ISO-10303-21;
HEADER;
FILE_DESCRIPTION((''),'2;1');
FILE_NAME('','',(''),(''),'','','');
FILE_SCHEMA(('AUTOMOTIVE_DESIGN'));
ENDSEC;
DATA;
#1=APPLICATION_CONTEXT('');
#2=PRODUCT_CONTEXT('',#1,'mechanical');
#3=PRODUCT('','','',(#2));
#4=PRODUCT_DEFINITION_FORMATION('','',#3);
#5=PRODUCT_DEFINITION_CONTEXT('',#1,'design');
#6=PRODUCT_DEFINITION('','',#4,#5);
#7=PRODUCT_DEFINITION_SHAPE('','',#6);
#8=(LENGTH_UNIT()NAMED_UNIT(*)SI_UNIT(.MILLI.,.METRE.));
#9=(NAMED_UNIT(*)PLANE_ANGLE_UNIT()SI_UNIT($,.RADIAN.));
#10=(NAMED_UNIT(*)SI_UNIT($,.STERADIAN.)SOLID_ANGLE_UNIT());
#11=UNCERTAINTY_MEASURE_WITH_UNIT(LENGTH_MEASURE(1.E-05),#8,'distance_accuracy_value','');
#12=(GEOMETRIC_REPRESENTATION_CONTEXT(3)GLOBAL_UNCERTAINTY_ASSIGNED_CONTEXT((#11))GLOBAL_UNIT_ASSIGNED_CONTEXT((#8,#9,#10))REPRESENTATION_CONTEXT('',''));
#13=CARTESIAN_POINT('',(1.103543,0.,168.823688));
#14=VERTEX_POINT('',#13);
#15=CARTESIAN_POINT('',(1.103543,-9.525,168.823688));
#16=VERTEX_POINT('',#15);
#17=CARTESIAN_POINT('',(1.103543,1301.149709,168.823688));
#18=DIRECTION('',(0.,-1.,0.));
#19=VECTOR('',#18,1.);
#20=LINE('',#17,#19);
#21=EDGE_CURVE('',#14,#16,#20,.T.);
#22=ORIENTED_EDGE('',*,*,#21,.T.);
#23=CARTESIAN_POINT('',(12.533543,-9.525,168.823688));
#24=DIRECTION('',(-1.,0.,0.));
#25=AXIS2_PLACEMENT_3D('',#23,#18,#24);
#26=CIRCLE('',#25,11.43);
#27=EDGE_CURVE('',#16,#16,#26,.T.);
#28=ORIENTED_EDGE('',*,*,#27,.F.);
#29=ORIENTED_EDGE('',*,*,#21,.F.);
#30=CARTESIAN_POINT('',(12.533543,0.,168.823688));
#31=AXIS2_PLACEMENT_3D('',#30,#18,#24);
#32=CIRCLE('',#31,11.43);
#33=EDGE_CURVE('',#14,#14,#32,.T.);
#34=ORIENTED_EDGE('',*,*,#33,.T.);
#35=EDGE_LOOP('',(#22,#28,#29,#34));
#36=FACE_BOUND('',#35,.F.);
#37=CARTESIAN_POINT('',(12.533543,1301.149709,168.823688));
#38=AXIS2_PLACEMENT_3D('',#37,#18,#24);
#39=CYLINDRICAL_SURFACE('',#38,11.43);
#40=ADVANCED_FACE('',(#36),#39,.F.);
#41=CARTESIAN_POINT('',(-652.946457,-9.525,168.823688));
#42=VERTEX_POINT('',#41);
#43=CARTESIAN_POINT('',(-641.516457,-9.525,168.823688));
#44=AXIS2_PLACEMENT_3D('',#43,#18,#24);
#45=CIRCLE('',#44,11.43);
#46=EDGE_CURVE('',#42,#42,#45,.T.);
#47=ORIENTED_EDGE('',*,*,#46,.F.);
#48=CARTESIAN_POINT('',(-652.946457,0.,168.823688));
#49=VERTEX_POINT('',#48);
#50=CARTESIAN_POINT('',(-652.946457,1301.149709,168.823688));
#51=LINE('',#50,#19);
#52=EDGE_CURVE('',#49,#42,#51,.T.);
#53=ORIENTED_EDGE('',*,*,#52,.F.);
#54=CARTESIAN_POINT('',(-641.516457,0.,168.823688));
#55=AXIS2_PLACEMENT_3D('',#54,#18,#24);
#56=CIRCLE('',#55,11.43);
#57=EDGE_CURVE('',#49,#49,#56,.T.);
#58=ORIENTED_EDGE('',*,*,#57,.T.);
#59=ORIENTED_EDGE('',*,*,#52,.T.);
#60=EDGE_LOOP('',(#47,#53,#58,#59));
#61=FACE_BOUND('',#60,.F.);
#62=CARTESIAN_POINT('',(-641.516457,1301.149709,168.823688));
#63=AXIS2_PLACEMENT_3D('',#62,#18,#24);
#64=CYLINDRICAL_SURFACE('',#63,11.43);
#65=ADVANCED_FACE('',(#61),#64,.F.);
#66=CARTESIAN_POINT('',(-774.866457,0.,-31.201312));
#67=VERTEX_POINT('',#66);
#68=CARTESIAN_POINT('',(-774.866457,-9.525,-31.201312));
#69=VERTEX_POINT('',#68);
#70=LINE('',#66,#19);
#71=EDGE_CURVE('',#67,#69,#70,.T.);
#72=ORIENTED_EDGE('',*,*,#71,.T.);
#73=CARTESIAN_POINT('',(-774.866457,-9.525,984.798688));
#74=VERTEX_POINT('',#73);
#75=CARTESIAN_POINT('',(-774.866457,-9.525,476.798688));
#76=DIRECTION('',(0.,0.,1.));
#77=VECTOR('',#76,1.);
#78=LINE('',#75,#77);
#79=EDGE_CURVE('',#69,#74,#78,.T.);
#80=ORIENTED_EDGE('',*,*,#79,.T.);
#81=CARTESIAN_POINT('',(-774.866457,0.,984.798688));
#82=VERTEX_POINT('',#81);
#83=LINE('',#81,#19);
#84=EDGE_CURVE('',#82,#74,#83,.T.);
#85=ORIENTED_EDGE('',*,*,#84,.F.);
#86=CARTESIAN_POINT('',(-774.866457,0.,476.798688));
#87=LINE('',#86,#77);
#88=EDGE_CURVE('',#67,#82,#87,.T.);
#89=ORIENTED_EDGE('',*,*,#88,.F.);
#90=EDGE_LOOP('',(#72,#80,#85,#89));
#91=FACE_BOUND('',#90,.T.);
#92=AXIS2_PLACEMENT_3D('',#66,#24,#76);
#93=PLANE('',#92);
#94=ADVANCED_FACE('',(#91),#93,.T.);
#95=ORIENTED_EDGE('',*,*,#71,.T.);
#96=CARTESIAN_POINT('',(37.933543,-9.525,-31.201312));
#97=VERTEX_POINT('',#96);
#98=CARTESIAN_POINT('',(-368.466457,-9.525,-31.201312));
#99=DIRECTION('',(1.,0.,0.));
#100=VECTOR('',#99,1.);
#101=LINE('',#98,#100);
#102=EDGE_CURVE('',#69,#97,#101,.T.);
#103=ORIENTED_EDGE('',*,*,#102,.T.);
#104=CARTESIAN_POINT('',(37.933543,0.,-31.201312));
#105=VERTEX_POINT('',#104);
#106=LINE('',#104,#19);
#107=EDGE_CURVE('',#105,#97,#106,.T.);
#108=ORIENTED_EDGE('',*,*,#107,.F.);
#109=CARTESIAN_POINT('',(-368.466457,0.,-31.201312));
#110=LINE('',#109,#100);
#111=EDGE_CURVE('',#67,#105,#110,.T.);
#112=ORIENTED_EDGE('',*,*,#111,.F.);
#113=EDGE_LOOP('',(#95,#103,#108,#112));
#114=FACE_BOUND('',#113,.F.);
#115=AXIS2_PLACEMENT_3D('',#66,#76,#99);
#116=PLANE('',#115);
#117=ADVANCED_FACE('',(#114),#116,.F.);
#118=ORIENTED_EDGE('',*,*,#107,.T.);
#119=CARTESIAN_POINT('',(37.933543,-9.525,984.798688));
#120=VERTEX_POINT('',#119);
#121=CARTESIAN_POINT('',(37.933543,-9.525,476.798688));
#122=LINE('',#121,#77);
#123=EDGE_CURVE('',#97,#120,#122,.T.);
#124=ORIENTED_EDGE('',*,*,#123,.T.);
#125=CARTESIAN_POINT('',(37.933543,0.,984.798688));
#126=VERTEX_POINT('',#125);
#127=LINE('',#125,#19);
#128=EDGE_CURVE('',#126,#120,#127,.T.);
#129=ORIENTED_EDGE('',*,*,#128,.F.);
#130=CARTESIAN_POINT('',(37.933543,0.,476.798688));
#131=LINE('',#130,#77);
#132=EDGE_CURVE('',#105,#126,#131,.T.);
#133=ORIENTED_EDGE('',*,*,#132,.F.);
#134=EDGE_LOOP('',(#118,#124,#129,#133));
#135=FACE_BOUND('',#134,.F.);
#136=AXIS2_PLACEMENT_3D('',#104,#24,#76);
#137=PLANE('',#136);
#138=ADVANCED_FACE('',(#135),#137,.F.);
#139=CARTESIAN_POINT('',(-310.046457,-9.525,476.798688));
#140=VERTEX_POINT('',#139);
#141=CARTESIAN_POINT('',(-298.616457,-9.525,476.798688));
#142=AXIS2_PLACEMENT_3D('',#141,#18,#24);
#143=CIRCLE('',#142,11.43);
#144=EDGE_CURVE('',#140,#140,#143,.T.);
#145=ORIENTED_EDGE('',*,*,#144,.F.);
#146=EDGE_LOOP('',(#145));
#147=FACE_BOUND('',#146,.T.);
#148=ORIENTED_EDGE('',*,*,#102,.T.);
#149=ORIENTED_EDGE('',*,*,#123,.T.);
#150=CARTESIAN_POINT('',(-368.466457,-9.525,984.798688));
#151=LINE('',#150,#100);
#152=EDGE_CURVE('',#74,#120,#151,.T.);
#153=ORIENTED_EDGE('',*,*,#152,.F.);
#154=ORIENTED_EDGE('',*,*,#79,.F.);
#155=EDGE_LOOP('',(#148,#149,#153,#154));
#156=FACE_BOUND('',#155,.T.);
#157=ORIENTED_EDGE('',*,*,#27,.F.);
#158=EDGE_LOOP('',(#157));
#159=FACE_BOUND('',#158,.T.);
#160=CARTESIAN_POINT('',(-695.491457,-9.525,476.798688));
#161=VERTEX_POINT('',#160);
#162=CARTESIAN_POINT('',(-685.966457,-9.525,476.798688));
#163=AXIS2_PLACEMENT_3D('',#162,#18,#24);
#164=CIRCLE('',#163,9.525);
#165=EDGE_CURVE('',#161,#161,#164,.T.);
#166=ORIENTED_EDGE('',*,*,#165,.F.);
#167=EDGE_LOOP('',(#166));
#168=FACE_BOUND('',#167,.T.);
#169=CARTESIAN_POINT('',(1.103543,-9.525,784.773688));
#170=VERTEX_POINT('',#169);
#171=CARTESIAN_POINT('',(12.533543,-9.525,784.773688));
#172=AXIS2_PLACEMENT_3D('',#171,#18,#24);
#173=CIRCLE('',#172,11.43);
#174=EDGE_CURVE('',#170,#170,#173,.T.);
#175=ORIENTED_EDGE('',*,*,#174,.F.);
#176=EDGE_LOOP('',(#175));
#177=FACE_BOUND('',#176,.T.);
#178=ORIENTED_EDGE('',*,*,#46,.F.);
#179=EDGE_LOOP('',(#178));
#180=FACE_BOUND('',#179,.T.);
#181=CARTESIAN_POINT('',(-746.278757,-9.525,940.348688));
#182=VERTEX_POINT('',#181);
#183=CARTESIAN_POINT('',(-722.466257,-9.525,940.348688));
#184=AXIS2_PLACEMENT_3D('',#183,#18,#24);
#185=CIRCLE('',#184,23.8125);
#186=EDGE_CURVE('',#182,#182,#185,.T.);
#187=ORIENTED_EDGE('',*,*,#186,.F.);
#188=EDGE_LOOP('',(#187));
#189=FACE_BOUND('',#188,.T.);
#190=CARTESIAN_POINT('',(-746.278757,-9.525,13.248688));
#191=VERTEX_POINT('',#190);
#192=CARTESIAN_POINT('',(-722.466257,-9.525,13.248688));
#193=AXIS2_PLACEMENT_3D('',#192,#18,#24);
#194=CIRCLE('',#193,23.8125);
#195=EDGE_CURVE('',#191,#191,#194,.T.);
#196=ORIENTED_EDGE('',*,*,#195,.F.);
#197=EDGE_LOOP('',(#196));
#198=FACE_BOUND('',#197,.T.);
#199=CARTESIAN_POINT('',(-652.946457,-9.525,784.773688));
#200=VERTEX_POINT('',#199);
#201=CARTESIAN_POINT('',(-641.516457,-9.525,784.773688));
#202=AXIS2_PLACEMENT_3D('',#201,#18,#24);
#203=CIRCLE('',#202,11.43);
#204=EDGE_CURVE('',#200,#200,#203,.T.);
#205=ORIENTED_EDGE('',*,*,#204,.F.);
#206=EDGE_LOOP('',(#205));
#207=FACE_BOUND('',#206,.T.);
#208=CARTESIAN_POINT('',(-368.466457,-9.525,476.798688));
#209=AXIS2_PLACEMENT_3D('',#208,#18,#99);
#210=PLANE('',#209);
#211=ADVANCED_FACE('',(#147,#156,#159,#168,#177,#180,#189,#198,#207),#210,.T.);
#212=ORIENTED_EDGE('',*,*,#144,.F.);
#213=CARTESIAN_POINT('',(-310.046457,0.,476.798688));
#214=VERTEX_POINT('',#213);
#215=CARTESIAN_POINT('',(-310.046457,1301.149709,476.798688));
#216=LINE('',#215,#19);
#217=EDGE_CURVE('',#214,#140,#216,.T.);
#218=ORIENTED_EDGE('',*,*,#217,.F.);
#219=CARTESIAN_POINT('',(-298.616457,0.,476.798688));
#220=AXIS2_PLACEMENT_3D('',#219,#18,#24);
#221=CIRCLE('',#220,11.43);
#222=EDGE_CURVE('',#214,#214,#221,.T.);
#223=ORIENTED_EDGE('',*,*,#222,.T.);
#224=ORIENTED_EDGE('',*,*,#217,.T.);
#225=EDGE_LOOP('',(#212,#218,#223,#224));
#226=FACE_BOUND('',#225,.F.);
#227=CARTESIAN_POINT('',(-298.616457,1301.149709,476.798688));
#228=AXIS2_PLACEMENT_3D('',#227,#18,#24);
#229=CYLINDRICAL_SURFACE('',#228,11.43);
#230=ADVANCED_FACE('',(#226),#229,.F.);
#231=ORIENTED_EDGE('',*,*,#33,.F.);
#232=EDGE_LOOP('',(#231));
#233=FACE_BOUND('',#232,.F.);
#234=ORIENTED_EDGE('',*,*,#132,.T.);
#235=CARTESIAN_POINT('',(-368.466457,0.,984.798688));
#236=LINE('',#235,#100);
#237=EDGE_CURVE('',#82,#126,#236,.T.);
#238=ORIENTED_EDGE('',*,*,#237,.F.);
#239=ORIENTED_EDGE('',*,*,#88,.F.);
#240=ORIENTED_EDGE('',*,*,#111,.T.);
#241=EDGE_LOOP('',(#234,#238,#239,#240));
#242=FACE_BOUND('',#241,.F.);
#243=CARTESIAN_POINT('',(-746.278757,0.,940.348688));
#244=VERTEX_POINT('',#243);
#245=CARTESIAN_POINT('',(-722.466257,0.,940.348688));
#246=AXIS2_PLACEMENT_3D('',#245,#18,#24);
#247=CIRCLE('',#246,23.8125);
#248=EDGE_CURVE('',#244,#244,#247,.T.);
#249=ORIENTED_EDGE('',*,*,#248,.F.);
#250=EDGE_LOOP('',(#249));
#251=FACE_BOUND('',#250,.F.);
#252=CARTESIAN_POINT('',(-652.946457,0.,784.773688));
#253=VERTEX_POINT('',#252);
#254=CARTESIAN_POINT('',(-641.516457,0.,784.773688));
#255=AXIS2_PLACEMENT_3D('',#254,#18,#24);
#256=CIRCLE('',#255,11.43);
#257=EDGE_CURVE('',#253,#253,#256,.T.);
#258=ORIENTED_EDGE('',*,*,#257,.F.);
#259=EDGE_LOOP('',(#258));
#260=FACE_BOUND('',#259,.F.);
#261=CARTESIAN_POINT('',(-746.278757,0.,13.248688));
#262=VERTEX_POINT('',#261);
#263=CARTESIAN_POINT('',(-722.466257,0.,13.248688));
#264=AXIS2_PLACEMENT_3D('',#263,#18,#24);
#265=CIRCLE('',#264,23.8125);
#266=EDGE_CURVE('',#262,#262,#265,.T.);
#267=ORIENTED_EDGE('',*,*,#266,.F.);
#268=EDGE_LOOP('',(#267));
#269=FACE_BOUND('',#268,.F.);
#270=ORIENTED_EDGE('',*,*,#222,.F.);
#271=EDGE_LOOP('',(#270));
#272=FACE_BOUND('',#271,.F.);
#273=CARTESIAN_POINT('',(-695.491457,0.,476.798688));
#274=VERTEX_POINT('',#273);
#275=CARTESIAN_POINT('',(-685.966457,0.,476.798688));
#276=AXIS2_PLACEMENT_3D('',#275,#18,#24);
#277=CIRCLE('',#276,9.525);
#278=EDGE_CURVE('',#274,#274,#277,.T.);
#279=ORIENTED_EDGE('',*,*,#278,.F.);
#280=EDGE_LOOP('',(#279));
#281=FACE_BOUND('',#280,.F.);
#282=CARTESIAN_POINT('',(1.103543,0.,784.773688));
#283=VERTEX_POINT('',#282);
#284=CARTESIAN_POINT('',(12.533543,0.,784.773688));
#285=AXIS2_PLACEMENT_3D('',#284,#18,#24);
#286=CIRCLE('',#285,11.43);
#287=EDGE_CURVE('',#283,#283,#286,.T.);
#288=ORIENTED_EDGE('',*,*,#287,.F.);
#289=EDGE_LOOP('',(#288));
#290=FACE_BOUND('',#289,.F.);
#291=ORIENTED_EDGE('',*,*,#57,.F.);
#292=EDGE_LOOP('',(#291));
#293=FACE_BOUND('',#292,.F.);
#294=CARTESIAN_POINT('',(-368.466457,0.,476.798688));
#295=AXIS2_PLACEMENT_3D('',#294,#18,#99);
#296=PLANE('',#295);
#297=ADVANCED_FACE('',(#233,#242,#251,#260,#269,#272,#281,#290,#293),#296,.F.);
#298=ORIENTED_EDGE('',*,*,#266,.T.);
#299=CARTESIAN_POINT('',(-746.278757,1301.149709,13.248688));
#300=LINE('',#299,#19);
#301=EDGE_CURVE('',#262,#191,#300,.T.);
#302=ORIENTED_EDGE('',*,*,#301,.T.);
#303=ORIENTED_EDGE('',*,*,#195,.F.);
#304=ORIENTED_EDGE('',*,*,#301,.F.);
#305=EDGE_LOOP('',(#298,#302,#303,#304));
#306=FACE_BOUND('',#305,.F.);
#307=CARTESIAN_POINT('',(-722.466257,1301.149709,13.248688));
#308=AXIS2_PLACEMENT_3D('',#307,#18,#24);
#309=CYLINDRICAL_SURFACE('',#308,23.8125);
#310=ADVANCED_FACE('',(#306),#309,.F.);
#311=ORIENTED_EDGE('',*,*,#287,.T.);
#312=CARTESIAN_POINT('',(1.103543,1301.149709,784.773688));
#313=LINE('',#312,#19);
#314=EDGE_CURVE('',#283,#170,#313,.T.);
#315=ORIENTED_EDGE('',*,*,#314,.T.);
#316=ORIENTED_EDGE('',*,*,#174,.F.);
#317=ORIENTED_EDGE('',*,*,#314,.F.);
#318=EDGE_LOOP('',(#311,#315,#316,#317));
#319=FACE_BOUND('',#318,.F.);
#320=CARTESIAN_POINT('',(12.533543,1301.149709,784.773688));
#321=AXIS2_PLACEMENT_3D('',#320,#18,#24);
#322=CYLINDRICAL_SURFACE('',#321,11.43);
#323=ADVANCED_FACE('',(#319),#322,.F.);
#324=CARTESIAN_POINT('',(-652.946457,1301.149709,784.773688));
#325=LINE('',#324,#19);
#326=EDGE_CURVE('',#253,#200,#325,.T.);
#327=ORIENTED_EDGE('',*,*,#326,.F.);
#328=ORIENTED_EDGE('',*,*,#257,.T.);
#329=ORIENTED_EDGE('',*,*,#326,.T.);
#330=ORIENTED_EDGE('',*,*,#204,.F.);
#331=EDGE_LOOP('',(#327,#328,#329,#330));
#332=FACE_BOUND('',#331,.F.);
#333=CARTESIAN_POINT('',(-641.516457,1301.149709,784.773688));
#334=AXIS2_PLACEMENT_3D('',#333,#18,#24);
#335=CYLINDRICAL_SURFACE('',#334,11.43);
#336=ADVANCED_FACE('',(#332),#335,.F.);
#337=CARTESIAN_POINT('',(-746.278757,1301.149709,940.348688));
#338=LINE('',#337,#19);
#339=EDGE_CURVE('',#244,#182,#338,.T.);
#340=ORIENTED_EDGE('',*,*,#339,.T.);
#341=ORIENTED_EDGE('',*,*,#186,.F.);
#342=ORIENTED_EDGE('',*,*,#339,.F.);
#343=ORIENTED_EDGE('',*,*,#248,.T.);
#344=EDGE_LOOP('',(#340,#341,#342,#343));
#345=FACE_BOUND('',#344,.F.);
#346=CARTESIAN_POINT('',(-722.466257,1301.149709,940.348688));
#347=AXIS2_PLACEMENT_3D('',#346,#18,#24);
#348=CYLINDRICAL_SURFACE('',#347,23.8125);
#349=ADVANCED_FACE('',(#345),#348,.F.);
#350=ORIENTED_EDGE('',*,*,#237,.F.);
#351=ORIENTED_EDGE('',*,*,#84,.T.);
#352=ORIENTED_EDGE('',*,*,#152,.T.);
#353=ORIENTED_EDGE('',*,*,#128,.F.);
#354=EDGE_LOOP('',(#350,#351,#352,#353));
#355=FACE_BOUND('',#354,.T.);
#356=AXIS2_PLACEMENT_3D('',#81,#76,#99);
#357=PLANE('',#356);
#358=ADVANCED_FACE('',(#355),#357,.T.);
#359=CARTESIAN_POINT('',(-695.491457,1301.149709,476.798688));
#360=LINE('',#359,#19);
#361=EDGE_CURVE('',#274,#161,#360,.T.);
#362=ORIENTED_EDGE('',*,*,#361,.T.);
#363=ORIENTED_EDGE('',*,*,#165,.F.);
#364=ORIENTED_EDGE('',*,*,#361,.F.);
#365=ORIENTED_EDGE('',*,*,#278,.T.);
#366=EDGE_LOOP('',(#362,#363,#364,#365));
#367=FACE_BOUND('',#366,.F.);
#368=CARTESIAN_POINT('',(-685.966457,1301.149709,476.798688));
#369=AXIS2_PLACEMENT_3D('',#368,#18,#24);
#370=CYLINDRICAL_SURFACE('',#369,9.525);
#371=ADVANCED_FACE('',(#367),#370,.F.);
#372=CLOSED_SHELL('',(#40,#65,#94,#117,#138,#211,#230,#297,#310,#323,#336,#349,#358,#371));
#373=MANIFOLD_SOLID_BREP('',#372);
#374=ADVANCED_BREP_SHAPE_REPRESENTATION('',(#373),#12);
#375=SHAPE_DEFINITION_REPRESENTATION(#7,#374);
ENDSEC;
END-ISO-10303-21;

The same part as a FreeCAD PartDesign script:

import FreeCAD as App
import Part
import Sketcher

V = App.Vector
Q = App.Units.Quantity

doc = App.newDocument("Part")
body = doc.addObject("PartDesign::Body", "Body")

# Sketch on XZ plane
sketch1 = doc.addObject("Sketcher::SketchObject", "Sketch")
body.addObject(sketch1)
sketch1.AttachmentSupport = (doc.XZ_Plane, [""])
sketch1.MapMode = "FlatFace"
sketch1.addGeometry([
    Part.LineSegment(V(-775, 985, 0), V(-775, -31, 0)),
    Part.LineSegment(V(-775, -31, 0), V(38, -31, 0)),
    Part.LineSegment(V(38, -31, 0), V(38, 985, 0)),
    Part.LineSegment(V(38, 985, 0), V(-775, 985, 0)),
], False)
sketch1.addConstraint([
    Sketcher.Constraint("Coincident", 0, 2, 1, 1),
    Sketcher.Constraint("Coincident", 1, 2, 2, 1),
    Sketcher.Constraint("Coincident", 2, 2, 3, 1),
    Sketcher.Constraint("Coincident", 3, 2, 0, 1),
    Sketcher.Constraint("Vertical", 0),
    Sketcher.Constraint("Horizontal", 1),
    Sketcher.Constraint("Vertical", 2),
    Sketcher.Constraint("Horizontal", 3),
    Sketcher.Constraint("DistanceX", 1, 1, 1, 2, Q("32 in")),
    Sketcher.Constraint("DistanceY", 0, 2, 0, 1, Q("40 in")),
    Sketcher.Constraint("DistanceX", 0, 2, -1, 1, Q("774.866457 mm")),
    Sketcher.Constraint("DistanceY", 0, 2, -1, 1, Q("31.201312 mm")),
])
pad1 = doc.addObject("PartDesign::Pad", "Pad")
body.addObject(pad1)
pad1.Profile = sketch1
pad1.Length = Q("0.375 in")

# Sketch on XZ plane
sketch2 = doc.addObject("Sketcher::SketchObject", "Sketch001")
body.addObject(sketch2)
sketch2.AttachmentSupport = (doc.XZ_Plane, [""])
sketch2.MapMode = "FlatFace"
sketch2.addGeometry([
    Part.Circle(V(-722, 940, 0), V(0, 0, 1), 24),
    Part.Circle(V(-722, 13, 0), V(0, 0, 1), 24),
], False)
sketch2.addConstraint([
    Sketcher.Constraint("Equal", 0, 1),
    Sketcher.Constraint("Vertical", 0, 3, 1, 3),
    Sketcher.Constraint("Diameter", 0, Q("1.875 in")),
    Sketcher.Constraint("DistanceY", 1, 3, 0, 3, Q("36.5 in")),
    Sketcher.Constraint("DistanceX", 0, 3, -1, 1, Q("722.466257 mm")),
    Sketcher.Constraint("DistanceY", -1, 1, 0, 3, Q("940.348688 mm")),
])
doc.recompute()
hole = doc.addObject("PartDesign::Hole", "Hole")
body.addObject(hole)
hole.Profile = sketch2
hole.ThreadType = "None"
hole.Diameter = Q("1.875 in")
hole.DepthType = "ThroughAll"
hole.Reversed = True

# Sketch on XZ plane
sketch3 = doc.addObject("Sketcher::SketchObject", "Sketch002")
body.addObject(sketch3)
sketch3.AttachmentSupport = (doc.XZ_Plane, [""])
sketch3.MapMode = "FlatFace"
sketch3.addGeometry(Part.Circle(V(-686, 477, 0), V(0, 0, 1), 10), False)
sketch3.addConstraint([
    Sketcher.Constraint("Diameter", 0, Q("0.75 in")),
    Sketcher.Constraint("DistanceX", 0, 3, -1, 1, Q("685.966457 mm")),
    Sketcher.Constraint("DistanceY", -1, 1, 0, 3, Q("476.798688 mm")),
])
doc.recompute()
hole2 = doc.addObject("PartDesign::Hole", "Hole001")
body.addObject(hole2)
hole2.Profile = sketch3
hole2.ThreadType = "None"
hole2.Diameter = Q("0.75 in")
hole2.DepthType = "ThroughAll"
hole2.Reversed = True

# Sketch on XZ plane
sketch4 = doc.addObject("Sketcher::SketchObject", "Sketch003")
body.addObject(sketch4)
sketch4.AttachmentSupport = (doc.XZ_Plane, [""])
sketch4.MapMode = "FlatFace"
sketch4.addGeometry([
    Part.Circle(V(-642, 785, 0), V(0, 0, 1), 11),  # 0
    Part.Circle(V(-299, 477, 0), V(0, 0, 1), 11),  # 1
    Part.Circle(V(13, 785, 0), V(0, 0, 1), 11),  # 2
    Part.Circle(V(13, 169, 0), V(0, 0, 1), 11),  # 3
    Part.Circle(V(-642, 169, 0), V(0, 0, 1), 11),  # 4
], False)
sketch4.addConstraint([
    Sketcher.Constraint("Equal", 0, 1),
    Sketcher.Constraint("Equal", 1, 2),
    Sketcher.Constraint("Equal", 2, 3),
    Sketcher.Constraint("Equal", 3, 4),
    Sketcher.Constraint("Horizontal", 0, 3, 2, 3),
    Sketcher.Constraint("Horizontal", 3, 3, 4, 3),
    Sketcher.Constraint("Vertical", 2, 3, 3, 3),
    Sketcher.Constraint("Vertical", 0, 3, 4, 3),
    Sketcher.Constraint("Diameter", 0, Q("0.9 in")),
    Sketcher.Constraint("DistanceX", 0, 3, 1, 3, Q("13.5 in")),
    Sketcher.Constraint("DistanceX", 1, 3, 2, 3, Q("12.25 in")),
    Sketcher.Constraint("DistanceY", 3, 3, 2, 3, Q("24.25 in")),
    Sketcher.Constraint("DistanceY", 1, 3, 0, 3, Q("12.125 in")),
    Sketcher.Constraint("DistanceX", 0, 3, -1, 1, Q("641.516457 mm")),
    Sketcher.Constraint("DistanceY", -1, 1, 0, 3, Q("784.773688 mm")),
])
doc.recompute()
hole3 = doc.addObject("PartDesign::Hole", "Hole002")
body.addObject(hole3)
hole3.Profile = sketch4
hole3.ThreadType = "None"
hole3.Diameter = Q("0.9 in")
hole3.DepthType = "ThroughAll"
hole3.Reversed = True

doc.recompute()
